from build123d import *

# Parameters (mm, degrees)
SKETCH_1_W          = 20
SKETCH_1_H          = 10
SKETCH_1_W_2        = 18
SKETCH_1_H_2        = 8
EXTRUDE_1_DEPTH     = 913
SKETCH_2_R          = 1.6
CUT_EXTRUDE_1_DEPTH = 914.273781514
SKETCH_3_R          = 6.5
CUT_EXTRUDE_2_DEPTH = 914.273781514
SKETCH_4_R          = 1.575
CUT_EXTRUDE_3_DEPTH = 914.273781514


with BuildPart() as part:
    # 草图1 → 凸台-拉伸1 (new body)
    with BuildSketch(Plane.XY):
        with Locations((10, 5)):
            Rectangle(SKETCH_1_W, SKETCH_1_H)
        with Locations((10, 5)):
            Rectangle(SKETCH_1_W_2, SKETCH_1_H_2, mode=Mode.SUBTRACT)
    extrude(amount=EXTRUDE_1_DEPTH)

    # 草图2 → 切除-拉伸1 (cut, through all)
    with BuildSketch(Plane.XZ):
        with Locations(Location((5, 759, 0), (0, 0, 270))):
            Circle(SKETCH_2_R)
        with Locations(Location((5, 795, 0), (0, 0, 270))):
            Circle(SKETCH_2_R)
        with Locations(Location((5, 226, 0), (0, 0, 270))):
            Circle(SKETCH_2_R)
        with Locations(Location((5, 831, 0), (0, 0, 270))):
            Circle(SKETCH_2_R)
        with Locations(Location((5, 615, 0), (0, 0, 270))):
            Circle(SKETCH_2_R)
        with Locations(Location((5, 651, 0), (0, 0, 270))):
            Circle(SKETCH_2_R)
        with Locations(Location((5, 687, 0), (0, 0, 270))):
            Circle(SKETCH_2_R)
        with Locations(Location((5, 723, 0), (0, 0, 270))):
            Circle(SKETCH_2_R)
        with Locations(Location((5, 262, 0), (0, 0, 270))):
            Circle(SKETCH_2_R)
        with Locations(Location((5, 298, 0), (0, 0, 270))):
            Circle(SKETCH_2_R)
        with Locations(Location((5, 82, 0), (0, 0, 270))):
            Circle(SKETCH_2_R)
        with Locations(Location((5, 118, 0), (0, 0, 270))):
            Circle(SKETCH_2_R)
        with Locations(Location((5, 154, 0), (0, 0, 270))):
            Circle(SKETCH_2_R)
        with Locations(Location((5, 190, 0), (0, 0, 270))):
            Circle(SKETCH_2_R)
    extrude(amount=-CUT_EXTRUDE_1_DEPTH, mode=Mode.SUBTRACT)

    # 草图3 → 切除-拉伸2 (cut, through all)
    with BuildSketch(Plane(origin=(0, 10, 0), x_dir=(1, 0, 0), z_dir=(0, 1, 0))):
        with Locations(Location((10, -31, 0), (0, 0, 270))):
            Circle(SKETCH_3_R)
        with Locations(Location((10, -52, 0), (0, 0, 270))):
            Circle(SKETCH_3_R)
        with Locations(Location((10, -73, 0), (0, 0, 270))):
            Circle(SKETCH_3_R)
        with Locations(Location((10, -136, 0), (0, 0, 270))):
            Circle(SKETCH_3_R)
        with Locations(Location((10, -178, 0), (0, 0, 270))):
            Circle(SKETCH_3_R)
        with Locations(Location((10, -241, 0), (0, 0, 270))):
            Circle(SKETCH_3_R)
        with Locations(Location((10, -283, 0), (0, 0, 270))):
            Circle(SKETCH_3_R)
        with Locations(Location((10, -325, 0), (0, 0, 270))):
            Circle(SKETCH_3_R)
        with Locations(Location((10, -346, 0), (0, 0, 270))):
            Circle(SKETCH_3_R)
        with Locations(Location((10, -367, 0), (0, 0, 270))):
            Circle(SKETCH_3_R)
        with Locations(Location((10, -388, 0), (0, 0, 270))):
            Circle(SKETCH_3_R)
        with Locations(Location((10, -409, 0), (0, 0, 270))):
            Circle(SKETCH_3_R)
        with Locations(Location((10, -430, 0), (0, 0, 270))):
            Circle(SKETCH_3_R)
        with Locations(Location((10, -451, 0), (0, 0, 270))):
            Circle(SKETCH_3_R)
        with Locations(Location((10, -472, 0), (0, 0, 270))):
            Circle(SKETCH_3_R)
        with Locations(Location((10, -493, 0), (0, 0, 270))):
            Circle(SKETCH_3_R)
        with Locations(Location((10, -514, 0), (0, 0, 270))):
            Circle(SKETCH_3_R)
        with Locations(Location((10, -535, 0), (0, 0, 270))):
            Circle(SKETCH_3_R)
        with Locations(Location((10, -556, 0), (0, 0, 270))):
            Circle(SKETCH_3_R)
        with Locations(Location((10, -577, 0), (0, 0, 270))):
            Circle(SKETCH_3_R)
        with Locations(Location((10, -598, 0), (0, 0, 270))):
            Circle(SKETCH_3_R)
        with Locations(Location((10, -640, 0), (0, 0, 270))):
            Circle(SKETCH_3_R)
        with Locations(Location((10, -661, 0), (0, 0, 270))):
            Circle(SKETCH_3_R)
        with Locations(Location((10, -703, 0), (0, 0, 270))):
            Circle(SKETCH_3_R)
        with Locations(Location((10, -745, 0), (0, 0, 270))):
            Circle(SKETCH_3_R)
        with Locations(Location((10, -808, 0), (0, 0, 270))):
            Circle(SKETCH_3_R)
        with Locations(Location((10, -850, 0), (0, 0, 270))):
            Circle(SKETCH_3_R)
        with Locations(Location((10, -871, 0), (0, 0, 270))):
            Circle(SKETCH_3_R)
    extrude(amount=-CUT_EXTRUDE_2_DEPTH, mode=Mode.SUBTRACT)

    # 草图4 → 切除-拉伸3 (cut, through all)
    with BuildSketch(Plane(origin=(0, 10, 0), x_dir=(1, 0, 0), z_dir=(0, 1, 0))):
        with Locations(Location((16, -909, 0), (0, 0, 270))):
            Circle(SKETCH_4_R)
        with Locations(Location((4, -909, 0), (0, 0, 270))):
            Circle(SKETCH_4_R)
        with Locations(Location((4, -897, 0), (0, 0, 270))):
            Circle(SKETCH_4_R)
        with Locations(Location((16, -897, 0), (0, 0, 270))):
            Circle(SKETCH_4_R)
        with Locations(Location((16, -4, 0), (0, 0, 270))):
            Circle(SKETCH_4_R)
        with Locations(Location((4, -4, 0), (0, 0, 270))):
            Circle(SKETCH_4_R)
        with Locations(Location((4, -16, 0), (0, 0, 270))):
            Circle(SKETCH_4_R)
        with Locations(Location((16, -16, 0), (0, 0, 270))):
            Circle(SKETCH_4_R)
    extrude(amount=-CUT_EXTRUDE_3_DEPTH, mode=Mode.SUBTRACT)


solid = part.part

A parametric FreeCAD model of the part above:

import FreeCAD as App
import Part
import Sketcher


def add_polygon(sketch, points):
    """Adds a closed chain of lines whose ends are joined by coincident constraints."""
    first, n = sketch.GeometryCount, len(points)
    for a, b in zip(points, points[1:] + points[:1]):
        sketch.addGeometry(Part.LineSegment(App.Vector(*a, 0), App.Vector(*b, 0)), False)
    for i in range(n):
        sketch.addConstraint(Sketcher.Constraint("Coincident", first + i, 2, first + (i + 1) % n, 1))

doc = App.newDocument("Part")
body = doc.addObject("PartDesign::Body", "Body")

# Sketch on XY plane
sketch1 = body.newObject("Sketcher::SketchObject", "Sketch")
sketch1.AttachmentSupport = (doc.getObject("XY_Plane"), [""])
sketch1.MapMode = "FlatFace"
add_polygon(sketch1, [(0, 10), (0, 0), (20, 0), (20, 10)])  # lines 0-3
add_polygon(sketch1, [(19, 1), (1, 1), (1, 9), (19, 9)])  # lines 4-7
sketch1.addConstraint(Sketcher.Constraint("Vertical", 0))
sketch1.addConstraint(Sketcher.Constraint("Horizontal", 1))
sketch1.addConstraint(Sketcher.Constraint("Vertical", 2))
sketch1.addConstraint(Sketcher.Constraint("Horizontal", 3))
sketch1.addConstraint(Sketcher.Constraint("Horizontal", 4))
sketch1.addConstraint(Sketcher.Constraint("Vertical", 5))
sketch1.addConstraint(Sketcher.Constraint("Horizontal", 6))
sketch1.addConstraint(Sketcher.Constraint("Vertical", 7))
sketch1.addConstraint(Sketcher.Constraint("Coincident", 0, 2, -1, 1))
sketch1.addConstraint(Sketcher.Constraint("DistanceX", 1, 1, 1, 2, 20.0))
sketch1.addConstraint(Sketcher.Constraint("DistanceX", 4, 2, 4, 1, 18.0))
sketch1.addConstraint(Sketcher.Constraint("DistanceY", 0, 2, 0, 1, 10.0))
sketch1.addConstraint(Sketcher.Constraint("DistanceY", 5, 1, 5, 2, 8.0))
sketch1.addConstraint(Sketcher.Constraint("DistanceX", -1, 1, 4, 2, 1.0))
sketch1.addConstraint(Sketcher.Constraint("DistanceY", -1, 1, 4, 2, 1.0))
pad1 = body.newObject("PartDesign::Pad", "Pad")
pad1.Profile = sketch1
pad1.Length = 913

# Sketch on XZ plane
sketch2 = body.newObject("Sketcher::SketchObject", "Sketch001")
sketch2.AttachmentSupport = (doc.getObject("XZ_Plane"), [""])
sketch2.MapMode = "FlatFace"
sketch2.addGeometry(Part.Circle(App.Vector(5, 759, 0), App.Vector(0, 0, 1), 1.6), False)
sketch2.addGeometry(Part.Circle(App.Vector(5, 795, 0), App.Vector(0, 0, 1), 1.6), False)
sketch2.addGeometry(Part.Circle(App.Vector(5, 226, 0), App.Vector(0, 0, 1), 1.6), False)
sketch2.addGeometry(Part.Circle(App.Vector(5, 831, 0), App.Vector(0, 0, 1), 1.6), False)
sketch2.addGeometry(Part.Circle(App.Vector(5, 615, 0), App.Vector(0, 0, 1), 1.6), False)
sketch2.addGeometry(Part.Circle(App.Vector(5, 651, 0), App.Vector(0, 0, 1), 1.6), False)
sketch2.addGeometry(Part.Circle(App.Vector(5, 687, 0), App.Vector(0, 0, 1), 1.6), False)
sketch2.addGeometry(Part.Circle(App.Vector(5, 723, 0), App.Vector(0, 0, 1), 1.6), False)
sketch2.addGeometry(Part.Circle(App.Vector(5, 262, 0), App.Vector(0, 0, 1), 1.6), False)
sketch2.addGeometry(Part.Circle(App.Vector(5, 298, 0), App.Vector(0, 0, 1), 1.6), False)
sketch2.addGeometry(Part.Circle(App.Vector(5, 82, 0), App.Vector(0, 0, 1), 1.6), False)
sketch2.addGeometry(Part.Circle(App.Vector(5, 118, 0), App.Vector(0, 0, 1), 1.6), False)
sketch2.addGeometry(Part.Circle(App.Vector(5, 154, 0), App.Vector(0, 0, 1), 1.6), False)
sketch2.addGeometry(Part.Circle(App.Vector(5, 190, 0), App.Vector(0, 0, 1), 1.6), False)
sketch2.addConstraint(Sketcher.Constraint("Equal", 0, 1))
sketch2.addConstraint(Sketcher.Constraint("Equal", 1, 2))
sketch2.addConstraint(Sketcher.Constraint("Equal", 2, 3))
sketch2.addConstraint(Sketcher.Constraint("Equal", 3, 4))
sketch2.addConstraint(Sketcher.Constraint("Equal", 4, 5))
sketch2.addConstraint(Sketcher.Constraint("Equal", 5, 6))
sketch2.addConstraint(Sketcher.Constraint("Equal", 6, 7))
sketch2.addConstraint(Sketcher.Constraint("Equal", 7, 8))
sketch2.addConstraint(Sketcher.Constraint("Equal", 8, 9))
sketch2.addConstraint(Sketcher.Constraint("Equal", 9, 10))
sketch2.addConstraint(Sketcher.Constraint("Equal", 10, 11))
sketch2.addConstraint(Sketcher.Constraint("Equal", 11, 12))
sketch2.addConstraint(Sketcher.Constraint("Equal", 12, 13))
sketch2.addConstraint(Sketcher.Constraint("Vertical", 0, 3, 1, 3))
sketch2.addConstraint(Sketcher.Constraint("Vertical", 1, 3, 2, 3))
sketch2.addConstraint(Sketcher.Constraint("Vertical", 2, 3, 3, 3))
sketch2.addConstraint(Sketcher.Constraint("Vertical", 3, 3, 4, 3))
sketch2.addConstraint(Sketcher.Constraint("Vertical", 4, 3, 5, 3))
sketch2.addConstraint(Sketcher.Constraint("Vertical", 5, 3, 6, 3))
sketch2.addConstraint(Sketcher.Constraint("Vertical", 6, 3, 7, 3))
sketch2.addConstraint(Sketcher.Constraint("Vertical", 7, 3, 8, 3))
sketch2.addConstraint(Sketcher.Constraint("Vertical", 8, 3, 9, 3))
sketch2.addConstraint(Sketcher.Constraint("Vertical", 9, 3, 10, 3))
sketch2.addConstraint(Sketcher.Constraint("Vertical", 10, 3, 11, 3))
sketch2.addConstraint(Sketcher.Constraint("Vertical", 11, 3, 12, 3))
sketch2.addConstraint(Sketcher.Constraint("Vertical", 12, 3, 13, 3))
sketch2.addConstraint(Sketcher.Constraint("Diameter", 0, 3.2))
sketch2.addConstraint(Sketcher.Constraint("DistanceX", -1, 1, 0, 3, 5.0))
sketch2.addConstraint(Sketcher.Constraint("DistanceY", -1, 1, 0, 3, 759.0))
sketch2.addConstraint(Sketcher.Constraint("DistanceY", -1, 1, 1, 3, 795.0))
sketch2.addConstraint(Sketcher.Constraint("DistanceY", -1, 1, 2, 3, 226.0))
sketch2.addConstraint(Sketcher.Constraint("DistanceY", -1, 1, 3, 3, 831.0))
sketch2.addConstraint(Sketcher.Constraint("DistanceY", -1, 1, 4, 3, 615.0))
sketch2.addConstraint(Sketcher.Constraint("DistanceY", -1, 1, 5, 3, 651.0))
sketch2.addConstraint(Sketcher.Constraint("DistanceY", -1, 1, 6, 3, 687.0))
sketch2.addConstraint(Sketcher.Constraint("DistanceY", -1, 1, 7, 3, 723.0))
sketch2.addConstraint(Sketcher.Constraint("DistanceY", -1, 1, 8, 3, 262.0))
sketch2.addConstraint(Sketcher.Constraint("DistanceY", -1, 1, 9, 3, 298.0))
sketch2.addConstraint(Sketcher.Constraint("DistanceY", -1, 1, 10, 3, 82.0))
sketch2.addConstraint(Sketcher.Constraint("DistanceY", -1, 1, 11, 3, 118.0))
sketch2.addConstraint(Sketcher.Constraint("DistanceY", -1, 1, 12, 3, 154.0))
sketch2.addConstraint(Sketcher.Constraint("DistanceY", -1, 1, 13, 3, 190.0))
pocket1 = body.newObject("PartDesign::Pocket", "Pocket")
pocket1.Profile = sketch2
pocket1.Type = "ThroughAll"

# Sketch on XZ plane
sketch3 = body.newObject("Sketcher::SketchObject", "Sketch002")
sketch3.AttachmentSupport = (doc.getObject("XZ_Plane"), [""])
sketch3.MapMode = "FlatFace"
sketch3.AttachmentOffset = App.Placement(App.Vector(0, 0, -10), App.Rotation())
sketch3.addGeometry(Part.Circle(App.Vector(10, 31, 0), App.Vector(0, 0, 1), 6), False)
sketch3.addGeometry(Part.Circle(App.Vector(10, 52, 0), App.Vector(0, 0, 1), 6), False)
sketch3.addGeometry(Part.Circle(App.Vector(10, 73, 0), App.Vector(0, 0, 1), 6), False)
sketch3.addGeometry(Part.Circle(App.Vector(10, 136, 0), App.Vector(0, 0, 1), 6), False)
sketch3.addGeometry(Part.Circle(App.Vector(10, 178, 0), App.Vector(0, 0, 1), 6), False)
sketch3.addGeometry(Part.Circle(App.Vector(10, 241, 0), App.Vector(0, 0, 1), 6), False)
sketch3.addGeometry(Part.Circle(App.Vector(10, 283, 0), App.Vector(0, 0, 1), 6), False)
sketch3.addGeometry(Part.Circle(App.Vector(10, 325, 0), App.Vector(0, 0, 1), 6), False)
sketch3.addGeometry(Part.Circle(App.Vector(10, 346, 0), App.Vector(0, 0, 1), 6), False)
sketch3.addGeometry(Part.Circle(App.Vector(10, 367, 0), App.Vector(0, 0, 1), 6), False)
sketch3.addGeometry(Part.Circle(App.Vector(10, 388, 0), App.Vector(0, 0, 1), 6), False)
sketch3.addGeometry(Part.Circle(App.Vector(10, 409, 0), App.Vector(0, 0, 1), 6), False)
sketch3.addGeometry(Part.Circle(App.Vector(10, 430, 0), App.Vector(0, 0, 1), 6), False)
sketch3.addGeometry(Part.Circle(App.Vector(10, 451, 0), App.Vector(0, 0, 1), 6), False)
sketch3.addGeometry(Part.Circle(App.Vector(10, 472, 0), App.Vector(0, 0, 1), 6), False)
sketch3.addGeometry(Part.Circle(App.Vector(10, 493, 0), App.Vector(0, 0, 1), 6), False)
sketch3.addGeometry(Part.Circle(App.Vector(10, 514, 0), App.Vector(0, 0, 1), 6), False)
sketch3.addGeometry(Part.Circle(App.Vector(10, 535, 0), App.Vector(0, 0, 1), 6), False)
sketch3.addGeometry(Part.Circle(App.Vector(10, 556, 0), App.Vector(0, 0, 1), 6), False)
sketch3.addGeometry(Part.Circle(App.Vector(10, 577, 0), App.Vector(0, 0, 1), 6), False)
sketch3.addGeometry(Part.Circle(App.Vector(10, 598, 0), App.Vector(0, 0, 1), 6), False)
sketch3.addGeometry(Part.Circle(App.Vector(10, 640, 0), App.Vector(0, 0, 1), 6), False)
sketch3.addGeometry(Part.Circle(App.Vector(10, 661, 0), App.Vector(0, 0, 1), 6), False)
sketch3.addGeometry(Part.Circle(App.Vector(10, 703, 0), App.Vector(0, 0, 1), 6), False)
sketch3.addGeometry(Part.Circle(App.Vector(10, 745, 0), App.Vector(0, 0, 1), 6), False)
sketch3.addGeometry(Part.Circle(App.Vector(10, 808, 0), App.Vector(0, 0, 1), 6), False)
sketch3.addGeometry(Part.Circle(App.Vector(10, 850, 0), App.Vector(0, 0, 1), 6), False)
sketch3.addGeometry(Part.Circle(App.Vector(10, 871, 0), App.Vector(0, 0, 1), 6), False)
sketch3.addConstraint(Sketcher.Constraint("Equal", 0, 1))
sketch3.addConstraint(Sketcher.Constraint("Equal", 1, 2))
sketch3.addConstraint(Sketcher.Constraint("Equal", 2, 3))
sketch3.addConstraint(Sketcher.Constraint("Equal", 3, 4))
sketch3.addConstraint(Sketcher.Constraint("Equal", 4, 5))
sketch3.addConstraint(Sketcher.Constraint("Equal", 5, 6))
sketch3.addConstraint(Sketcher.Constraint("Equal", 6, 7))
sketch3.addConstraint(Sketcher.Constraint("Equal", 7, 8))
sketch3.addConstraint(Sketcher.Constraint("Equal", 8, 9))
sketch3.addConstraint(Sketcher.Constraint("Equal", 9, 10))
sketch3.addConstraint(Sketcher.Constraint("Equal", 10, 11))
sketch3.addConstraint(Sketcher.Constraint("Equal", 11, 12))
sketch3.addConstraint(Sketcher.Constraint("Equal", 12, 13))
sketch3.addConstraint(Sketcher.Constraint("Equal", 13, 14))
sketch3.addConstraint(Sketcher.Constraint("Equal", 14, 15))
sketch3.addConstraint(Sketcher.Constraint("Equal", 15, 16))
sketch3.addConstraint(Sketcher.Constraint("Equal", 16, 17))
sketch3.addConstraint(Sketcher.Constraint("Equal", 17, 18))
sketch3.addConstraint(Sketcher.Constraint("Equal", 18, 19))
sketch3.addConstraint(Sketcher.Constraint("Equal", 19, 20))
sketch3.addConstraint(Sketcher.Constraint("Equal", 20, 21))
sketch3.addConstraint(Sketcher.Constraint("Equal", 21, 22))
sketch3.addConstraint(Sketcher.Constraint("Equal", 22, 23))
sketch3.addConstraint(Sketcher.Constraint("Equal", 23, 24))
sketch3.addConstraint(Sketcher.Constraint("Equal", 24, 25))
sketch3.addConstraint(Sketcher.Constraint("Equal", 25, 26))
sketch3.addConstraint(Sketcher.Constraint("Equal", 26, 27))
sketch3.addConstraint(Sketcher.Constraint("Vertical", 0, 3, 1, 3))
sketch3.addConstraint(Sketcher.Constraint("Vertical", 1, 3, 2, 3))
sketch3.addConstraint(Sketcher.Constraint("Vertical", 2, 3, 3, 3))
sketch3.addConstraint(Sketcher.Constraint("Vertical", 3, 3, 4, 3))
sketch3.addConstraint(Sketcher.Constraint("Vertical", 4, 3, 5, 3))
sketch3.addConstraint(Sketcher.Constraint("Vertical", 5, 3, 6, 3))
sketch3.addConstraint(Sketcher.Constraint("Vertical", 6, 3, 7, 3))
sketch3.addConstraint(Sketcher.Constraint("Vertical", 7, 3, 8, 3))
sketch3.addConstraint(Sketcher.Constraint("Vertical", 8, 3, 9, 3))
sketch3.addConstraint(Sketcher.Constraint("Vertical", 9, 3, 10, 3))
sketch3.addConstraint(Sketcher.Constraint("Vertical", 10, 3, 11, 3))
sketch3.addConstraint(Sketcher.Constraint("Vertical", 11, 3, 12, 3))
sketch3.addConstraint(Sketcher.Constraint("Vertical", 12, 3, 13, 3))
sketch3.addConstraint(Sketcher.Constraint("Vertical", 13, 3, 14, 3))
sketch3.addConstraint(Sketcher.Constraint("Vertical", 14, 3, 15, 3))
sketch3.addConstraint(Sketcher.Constraint("Vertical", 15, 3, 16, 3))
sketch3.addConstraint(Sketcher.Constraint("Vertical", 16, 3, 17, 3))
sketch3.addConstraint(Sketcher.Constraint("Vertical", 17, 3, 18, 3))
sketch3.addConstraint(Sketcher.Constraint("Vertical", 18, 3, 19, 3))
sketch3.addConstraint(Sketcher.Constraint("Vertical", 19, 3, 20, 3))
sketch3.addConstraint(Sketcher.Constraint("Vertical", 20, 3, 21, 3))
sketch3.addConstraint(Sketcher.Constraint("Vertical", 21, 3, 22, 3))
sketch3.addConstraint(Sketcher.Constraint("Vertical", 22, 3, 23, 3))
sketch3.addConstraint(Sketcher.Constraint("Vertical", 23, 3, 24, 3))
sketch3.addConstraint(Sketcher.Constraint("Vertical", 24, 3, 25, 3))
sketch3.addConstraint(Sketcher.Constraint("Vertical", 25, 3, 26, 3))
sketch3.addConstraint(Sketcher.Constraint("Vertical", 26, 3, 27, 3))
sketch3.addConstraint(Sketcher.Constraint("Diameter", 0, 13.0))
sketch3.addConstraint(Sketcher.Constraint("DistanceX", -1, 1, 0, 3, 10.0))
sketch3.addConstraint(Sketcher.Constraint("DistanceY", -1, 1, 0, 3, 31.0))
sketch3.addConstraint(Sketcher.Constraint("DistanceY", -1, 1, 1, 3, 52.0))
sketch3.addConstraint(Sketcher.Constraint("DistanceY", -1, 1, 2, 3, 73.0))
sketch3.addConstraint(Sketcher.Constraint("DistanceY", -1, 1, 3, 3, 136.0))
sketch3.addConstraint(Sketcher.Constraint("DistanceY", -1, 1, 4, 3, 178.0))
sketch3.addConstraint(Sketcher.Constraint("DistanceY", -1, 1, 5, 3, 241.0))
sketch3.addConstraint(Sketcher.Constraint("DistanceY", -1, 1, 6, 3, 283.0))
sketch3.addConstraint(Sketcher.Constraint("DistanceY", -1, 1, 7, 3, 325.0))
sketch3.addConstraint(Sketcher.Constraint("DistanceY", -1, 1, 8, 3, 346.0))
sketch3.addConstraint(Sketcher.Constraint("DistanceY", -1, 1, 9, 3, 367.0))
sketch3.addConstraint(Sketcher.Constraint("DistanceY", -1, 1, 10, 3, 388.0))
sketch3.addConstraint(Sketcher.Constraint("DistanceY", -1, 1, 11, 3, 409.0))
sketch3.addConstraint(Sketcher.Constraint("DistanceY", -1, 1, 12, 3, 430.0))
sketch3.addConstraint(Sketcher.Constraint("DistanceY", -1, 1, 13, 3, 451.0))
sketch3.addConstraint(Sketcher.Constraint("DistanceY", -1, 1, 14, 3, 472.0))
sketch3.addConstraint(Sketcher.Constraint("DistanceY", -1, 1, 15, 3, 493.0))
sketch3.addConstraint(Sketcher.Constraint("DistanceY", -1, 1, 16, 3, 514.0))
sketch3.addConstraint(Sketcher.Constraint("DistanceY", -1, 1, 17, 3, 535.0))
sketch3.addConstraint(Sketcher.Constraint("DistanceY", -1, 1, 18, 3, 556.0))
sketch3.addConstraint(Sketcher.Constraint("DistanceY", -1, 1, 19, 3, 577.0))
sketch3.addConstraint(Sketcher.Constraint("DistanceY", -1, 1, 20, 3, 598.0))
sketch3.addConstraint(Sketcher.Constraint("DistanceY", -1, 1, 21, 3, 640.0))
sketch3.addConstraint(Sketcher.Constraint("DistanceY", -1, 1, 22, 3, 661.0))
sketch3.addConstraint(Sketcher.Constraint("DistanceY", -1, 1, 23, 3, 703.0))
sketch3.addConstraint(Sketcher.Constraint("DistanceY", -1, 1, 24, 3, 745.0))
sketch3.addConstraint(Sketcher.Constraint("DistanceY", -1, 1, 25, 3, 808.0))
sketch3.addConstraint(Sketcher.Constraint("DistanceY", -1, 1, 26, 3, 850.0))
sketch3.addConstraint(Sketcher.Constraint("DistanceY", -1, 1, 27, 3, 871.0))
pocket2 = body.newObject("PartDesign::Pocket", "Pocket001")
pocket2.Profile = sketch3
pocket2.Type = "ThroughAll"
pocket2.Reversed = True

# Sketch on XZ plane
sketch4 = body.newObject("Sketcher::SketchObject", "Sketch003")
sketch4.AttachmentSupport = (doc.getObject("XZ_Plane"), [""])
sketch4.MapMode = "FlatFace"
sketch4.AttachmentOffset = App.Placement(App.Vector(0, 0, -10), App.Rotation())
sketch4.addGeometry(Part.Circle(App.Vector(16, 909, 0), App.Vector(0, 0, 1), 1.6), False)
sketch4.addGeometry(Part.Circle(App.Vector(4, 909, 0), App.Vector(0, 0, 1), 1.6), False)
sketch4.addGeometry(Part.Circle(App.Vector(4, 897, 0), App.Vector(0, 0, 1), 1.6), False)
sketch4.addGeometry(Part.Circle(App.Vector(16, 897, 0), App.Vector(0, 0, 1), 1.6), False)
sketch4.addGeometry(Part.Circle(App.Vector(16, 4, 0), App.Vector(0, 0, 1), 1.6), False)
sketch4.addGeometry(Part.Circle(App.Vector(4, 4, 0), App.Vector(0, 0, 1), 1.6), False)
sketch4.addGeometry(Part.Circle(App.Vector(4, 16, 0), App.Vector(0, 0, 1), 1.6), False)
sketch4.addGeometry(Part.Circle(App.Vector(16, 16, 0), App.Vector(0, 0, 1), 1.6), False)
sketch4.addConstraint(Sketcher.Constraint("Equal", 0, 1))
sketch4.addConstraint(Sketcher.Constraint("Equal", 1, 2))
sketch4.addConstraint(Sketcher.Constraint("Equal", 2, 3))
sketch4.addConstraint(Sketcher.Constraint("Equal", 3, 4))
sketch4.addConstraint(Sketcher.Constraint("Equal", 4, 5))
sketch4.addConstraint(Sketcher.Constraint("Equal", 5, 6))
sketch4.addConstraint(Sketcher.Constraint("Equal", 6, 7))
sketch4.addConstraint(Sketcher.Constraint("Horizontal", 0, 3, 1, 3))
sketch4.addConstraint(Sketcher.Constraint("Horizontal", 2, 3, 3, 3))
sketch4.addConstraint(Sketcher.Constraint("Horizontal", 4, 3, 5, 3))
sketch4.addConstraint(Sketcher.Constraint("Horizontal", 6, 3, 7, 3))
sketch4.addConstraint(Sketcher.Constraint("Vertical", 1, 3, 2, 3))
sketch4.addConstraint(Sketcher.Constraint("Vertical", 0, 3, 3, 3))
sketch4.addConstraint(Sketcher.Constraint("Vertical", 3, 3, 4, 3))
sketch4.addConstraint(Sketcher.Constraint("Vertical", 2, 3, 5, 3))
sketch4.addConstraint(Sketcher.Constraint("Vertical", 5, 3, 6, 3))
sketch4.addConstraint(Sketcher.Constraint("Vertical", 4, 3, 7, 3))
sketch4.addConstraint(Sketcher.Constraint("Diameter", 0, 3.15))
sketch4.addConstraint(Sketcher.Constraint("DistanceX", -1, 1, 0, 3, 16.0))
sketch4.addConstraint(Sketcher.Constraint("DistanceY", -1, 1, 0, 3, 909.0))
sketch4.addConstraint(Sketcher.Constraint("DistanceX", -1, 1, 1, 3, 4.0))
sketch4.addConstraint(Sketcher.Constraint("DistanceY", -1, 1, 2, 3, 897.0))
sketch4.addConstraint(Sketcher.Constraint("DistanceY", -1, 1, 4, 3, 4.0))
sketch4.addConstraint(Sketcher.Constraint("DistanceY", -1, 1, 6, 3, 16.0))
pocket3 = body.newObject("PartDesign::Pocket", "Pocket002")
pocket3.Profile = sketch4
pocket3.Type = "ThroughAll"
pocket3.Reversed = True

doc.recompute()
